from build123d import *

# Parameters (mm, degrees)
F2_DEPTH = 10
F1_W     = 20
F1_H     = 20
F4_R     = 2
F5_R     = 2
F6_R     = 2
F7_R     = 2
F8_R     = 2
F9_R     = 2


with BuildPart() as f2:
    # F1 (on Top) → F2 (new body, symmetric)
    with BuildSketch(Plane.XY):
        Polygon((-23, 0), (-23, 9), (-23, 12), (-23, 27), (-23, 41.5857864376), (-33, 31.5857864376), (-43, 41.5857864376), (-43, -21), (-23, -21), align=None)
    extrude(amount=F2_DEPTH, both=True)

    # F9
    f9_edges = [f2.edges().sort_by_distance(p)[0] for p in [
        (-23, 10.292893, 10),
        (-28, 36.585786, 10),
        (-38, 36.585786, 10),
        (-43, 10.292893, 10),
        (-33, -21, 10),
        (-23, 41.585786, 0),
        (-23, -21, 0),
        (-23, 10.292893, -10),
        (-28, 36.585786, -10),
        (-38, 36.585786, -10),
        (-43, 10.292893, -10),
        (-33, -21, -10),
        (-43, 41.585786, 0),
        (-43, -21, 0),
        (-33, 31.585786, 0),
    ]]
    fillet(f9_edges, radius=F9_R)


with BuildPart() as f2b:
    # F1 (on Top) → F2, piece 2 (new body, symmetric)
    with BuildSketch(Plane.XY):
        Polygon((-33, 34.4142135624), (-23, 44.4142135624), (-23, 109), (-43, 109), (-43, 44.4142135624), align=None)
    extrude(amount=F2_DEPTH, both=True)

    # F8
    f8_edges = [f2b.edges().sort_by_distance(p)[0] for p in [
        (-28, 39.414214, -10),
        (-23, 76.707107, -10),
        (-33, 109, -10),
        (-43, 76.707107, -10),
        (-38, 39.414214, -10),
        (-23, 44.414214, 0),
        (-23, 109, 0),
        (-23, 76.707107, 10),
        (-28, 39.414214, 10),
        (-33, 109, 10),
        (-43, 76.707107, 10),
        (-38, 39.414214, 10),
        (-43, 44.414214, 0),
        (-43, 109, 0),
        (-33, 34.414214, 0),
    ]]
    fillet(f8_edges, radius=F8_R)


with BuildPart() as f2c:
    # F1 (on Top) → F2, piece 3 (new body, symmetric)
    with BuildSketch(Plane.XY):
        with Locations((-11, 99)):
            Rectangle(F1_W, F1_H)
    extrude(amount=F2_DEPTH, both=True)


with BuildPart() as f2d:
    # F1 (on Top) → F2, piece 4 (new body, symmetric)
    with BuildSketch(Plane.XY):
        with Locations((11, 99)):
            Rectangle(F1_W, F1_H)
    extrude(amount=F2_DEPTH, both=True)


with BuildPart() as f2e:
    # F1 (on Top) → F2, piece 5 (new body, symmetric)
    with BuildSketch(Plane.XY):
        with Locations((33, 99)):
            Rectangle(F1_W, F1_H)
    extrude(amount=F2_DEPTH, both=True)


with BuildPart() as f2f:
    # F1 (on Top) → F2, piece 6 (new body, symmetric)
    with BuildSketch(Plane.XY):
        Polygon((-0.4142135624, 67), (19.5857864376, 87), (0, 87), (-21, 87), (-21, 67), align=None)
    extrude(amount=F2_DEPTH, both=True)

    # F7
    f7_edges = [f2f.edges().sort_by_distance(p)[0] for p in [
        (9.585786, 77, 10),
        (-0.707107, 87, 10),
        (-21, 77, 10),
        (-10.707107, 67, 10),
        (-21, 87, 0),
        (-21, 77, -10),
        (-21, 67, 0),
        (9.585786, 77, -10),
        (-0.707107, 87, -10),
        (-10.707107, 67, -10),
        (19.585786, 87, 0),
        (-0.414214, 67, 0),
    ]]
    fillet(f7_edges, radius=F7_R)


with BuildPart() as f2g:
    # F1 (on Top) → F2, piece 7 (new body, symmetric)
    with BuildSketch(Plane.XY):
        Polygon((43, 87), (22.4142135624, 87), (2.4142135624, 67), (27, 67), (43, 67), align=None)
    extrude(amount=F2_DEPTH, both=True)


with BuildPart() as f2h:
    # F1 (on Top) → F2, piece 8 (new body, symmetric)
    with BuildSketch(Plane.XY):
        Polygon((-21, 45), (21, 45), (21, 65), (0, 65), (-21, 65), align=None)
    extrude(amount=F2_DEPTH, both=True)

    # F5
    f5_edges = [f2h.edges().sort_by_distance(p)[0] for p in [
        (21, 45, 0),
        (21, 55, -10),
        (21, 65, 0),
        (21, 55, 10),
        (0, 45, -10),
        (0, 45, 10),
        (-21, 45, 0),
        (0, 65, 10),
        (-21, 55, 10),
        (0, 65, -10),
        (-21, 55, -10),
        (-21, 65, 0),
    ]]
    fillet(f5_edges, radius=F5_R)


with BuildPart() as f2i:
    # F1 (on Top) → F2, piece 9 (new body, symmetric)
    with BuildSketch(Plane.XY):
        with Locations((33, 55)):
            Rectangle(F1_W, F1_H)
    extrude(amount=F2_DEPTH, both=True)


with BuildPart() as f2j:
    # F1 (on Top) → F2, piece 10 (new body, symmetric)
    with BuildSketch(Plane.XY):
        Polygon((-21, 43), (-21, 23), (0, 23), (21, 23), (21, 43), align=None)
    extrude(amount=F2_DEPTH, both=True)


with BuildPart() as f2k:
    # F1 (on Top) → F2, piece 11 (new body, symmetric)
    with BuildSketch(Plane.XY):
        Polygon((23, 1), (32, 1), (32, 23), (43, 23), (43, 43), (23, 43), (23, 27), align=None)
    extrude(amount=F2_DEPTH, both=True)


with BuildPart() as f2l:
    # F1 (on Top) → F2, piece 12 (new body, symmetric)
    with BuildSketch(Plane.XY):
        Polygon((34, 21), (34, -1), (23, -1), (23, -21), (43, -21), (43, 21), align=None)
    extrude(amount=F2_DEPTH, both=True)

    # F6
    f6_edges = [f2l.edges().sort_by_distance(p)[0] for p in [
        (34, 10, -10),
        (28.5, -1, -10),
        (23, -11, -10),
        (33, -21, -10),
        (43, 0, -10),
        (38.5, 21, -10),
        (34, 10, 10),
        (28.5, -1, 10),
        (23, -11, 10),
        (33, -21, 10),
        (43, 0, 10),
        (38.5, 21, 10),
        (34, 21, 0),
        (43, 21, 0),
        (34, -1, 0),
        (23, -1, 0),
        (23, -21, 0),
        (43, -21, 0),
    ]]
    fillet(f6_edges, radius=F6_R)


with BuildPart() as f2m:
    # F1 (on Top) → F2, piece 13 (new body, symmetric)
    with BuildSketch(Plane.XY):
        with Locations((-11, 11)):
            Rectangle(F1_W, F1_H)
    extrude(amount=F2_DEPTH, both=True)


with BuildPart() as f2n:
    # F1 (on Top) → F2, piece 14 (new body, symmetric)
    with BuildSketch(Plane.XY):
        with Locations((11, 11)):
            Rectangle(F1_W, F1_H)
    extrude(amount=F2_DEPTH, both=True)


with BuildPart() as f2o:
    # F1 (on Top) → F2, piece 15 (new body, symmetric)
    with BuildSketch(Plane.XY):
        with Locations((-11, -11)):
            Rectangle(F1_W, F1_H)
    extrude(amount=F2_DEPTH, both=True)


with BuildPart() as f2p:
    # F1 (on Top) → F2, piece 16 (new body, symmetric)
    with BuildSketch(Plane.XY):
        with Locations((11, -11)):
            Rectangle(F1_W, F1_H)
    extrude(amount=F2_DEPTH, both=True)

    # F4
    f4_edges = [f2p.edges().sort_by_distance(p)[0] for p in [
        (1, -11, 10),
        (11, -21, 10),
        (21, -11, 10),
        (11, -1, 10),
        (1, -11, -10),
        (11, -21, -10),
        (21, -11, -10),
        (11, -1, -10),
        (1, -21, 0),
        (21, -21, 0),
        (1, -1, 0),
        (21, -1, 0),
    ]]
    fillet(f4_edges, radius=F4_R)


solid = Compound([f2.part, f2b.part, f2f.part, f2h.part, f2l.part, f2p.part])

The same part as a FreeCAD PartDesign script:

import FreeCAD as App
import Part
import Sketcher

V = App.Vector
Q = App.Units.Quantity


def add_polygon(sketch, points):
    """Adds a closed chain of lines whose ends are joined by coincident constraints."""
    first, n = sketch.GeometryCount, len(points)
    for a, b in zip(points, points[1:] + points[:1]):
        sketch.addGeometry(Part.LineSegment(App.Vector(*a, 0), App.Vector(*b, 0)), False)
    for i in range(n):
        sketch.addConstraint(Sketcher.Constraint("Coincident", first + i, 2, first + (i + 1) % n, 1))

doc = App.newDocument("Part")
params = doc.addObject("Spreadsheet::Sheet", "Params")
for row, (alias, value) in enumerate([
    ("sketch1_width", "20 mm"),
    ("pad1_length", "20 mm"),
    ("fillet_radius", "2 mm"),
    ("sketch2_width", "20 mm"),
    ("pad2_length", "20 mm"),
    ("fillet2_radius", "2 mm"),
    ("sketch3_width", "20 mm"),
    ("pad3_length", "20 mm"),
    ("sketch4_width", "20 mm"),
    ("pad4_length", "20 mm"),
    ("sketch5_width", "20 mm"),
    ("pad5_length", "20 mm"),
    ("sketch6_height", "20 mm"),
    ("pad6_length", "20 mm"),
    ("fillet3_radius", "2 mm"),
    ("sketch7_height", "20 mm"),
    ("pad7_length", "20 mm"),
    ("sketch8_width", "42 mm"),
    ("sketch8_height", "20 mm"),
    ("pad8_length", "20 mm"),
    ("fillet4_radius", "2 mm"),
    ("sketch9_width", "20 mm"),
    ("pad9_length", "20 mm"),
    ("sketch10_width", "42 mm"),
    ("sketch10_height", "20 mm"),
    ("pad10_length", "20 mm"),
    ("sketch11_width", "9 mm"),
    ("sketch11_width2", "11 mm"),
    ("sketch11_height", "22 mm"),
    ("pad11_length", "20 mm"),
    ("sketch12_width", "11 mm"),
    ("sketch12_width2", "20 mm"),
    ("sketch12_height", "22 mm"),
    ("pad12_length", "20 mm"),
    ("fillet5_radius", "2 mm"),
    ("sketch13_width", "20 mm"),
    ("pad13_length", "20 mm"),
    ("sketch14_width", "20 mm"),
    ("pad14_length", "20 mm"),
    ("sketch15_width", "20 mm"),
    ("pad15_length", "20 mm"),
    ("sketch16_width", "20 mm"),
    ("pad16_length", "20 mm"),
    ("fillet6_radius", "2 mm"),
], start=1):
    params.set(f"A{row}", alias)
    params.set(f"B{row}", "=" + value)
    params.setAlias(f"B{row}", alias)

body = doc.addObject("PartDesign::Body", "Body")

sketch1 = body.newObject("Sketcher::SketchObject", "Sketch")
sketch1.AttachmentSupport = (doc.getObject("XY_Plane"), [""])
sketch1.MapMode = "FlatFace"
add_polygon(sketch1, [(-23, 42), (-33, 32), (-43, 42), (-43, -21), (-23, -21)])
sketch1.addConstraint(Sketcher.Constraint("Vertical", 2))
sketch1.addConstraint(Sketcher.Constraint("Horizontal", 3))
sketch1.addConstraint(Sketcher.Constraint("Vertical", 4))
sketch1.addConstraint(Sketcher.Constraint("Perpendicular", 0, 1))
sketch1.addConstraint(Sketcher.Constraint("Horizontal", 1, 2, 4, 2))
sketch1.addConstraint(Sketcher.Constraint("Equal", 0, 1))
sketch1.addConstraint(Sketcher.Constraint("DistanceX", 3, 1, 3, 2, Q("20 mm")))
sketch1.addConstraint(Sketcher.Constraint("DistanceX", 0, 2, -1, 1, Q("33 mm")))
sketch1.addConstraint(Sketcher.Constraint("DistanceY", 2, 2, -1, 1, Q("21 mm")))
sketch1.addConstraint(Sketcher.Constraint("DistanceY", 2, 2, 2, 1, Q("62.585786 mm")))
sketch1.setExpression("Constraints[11]", "Params.sketch1_width")
pad1 = body.newObject("PartDesign::Pad", "Pad")
pad1.Profile = sketch1
pad1.setExpression("Length", "Params.pad1_length")
pad1.Midplane = True
doc.recompute()

fillet = body.newObject("PartDesign::Fillet", "Fillet")
fillet.Base = (pad1, ["Edge1"])
fillet.UseAllEdges = True
fillet.setExpression("Radius", "Params.fillet_radius")
body2 = doc.addObject("PartDesign::Body", "Body001")

sketch2 = body2.newObject("Sketcher::SketchObject", "Sketch001")
sketch2.AttachmentSupport = (doc.getObject("XY_Plane001"), [""])
sketch2.MapMode = "FlatFace"
add_polygon(sketch2, [(-33, 34), (-23, 44), (-23, 109), (-43, 109), (-43, 44)])
sketch2.addConstraint(Sketcher.Constraint("Vertical", 1))
sketch2.addConstraint(Sketcher.Constraint("Horizontal", 2))
sketch2.addConstraint(Sketcher.Constraint("Vertical", 3))
sketch2.addConstraint(Sketcher.Constraint("Perpendicular", 0, 4))
sketch2.addConstraint(Sketcher.Constraint("Horizontal", 0, 2, 3, 2))
sketch2.addConstraint(Sketcher.Constraint("Equal", 0, 4))
sketch2.addConstraint(Sketcher.Constraint("DistanceX", 2, 2, 2, 1, Q("20 mm")))
sketch2.addConstraint(Sketcher.Constraint("DistanceX", 0, 2, -1, 1, Q("23 mm")))
sketch2.addConstraint(Sketcher.Constraint("DistanceY", -1, 1, 1, 2, Q("109 mm")))
sketch2.addConstraint(Sketcher.Constraint("DistanceY", 1, 1, 1, 2, Q("64.585786 mm")))
sketch2.setExpression("Constraints[11]", "Params.sketch2_width")
pad2 = body2.newObject("PartDesign::Pad", "Pad001")
pad2.Profile = sketch2
pad2.setExpression("Length", "Params.pad2_length")
pad2.Midplane = True
doc.recompute()

fillet2 = body2.newObject("PartDesign::Fillet", "Fillet001")
fillet2.Base = (pad2, ["Edge1"])
fillet2.UseAllEdges = True
fillet2.setExpression("Radius", "Params.fillet2_radius")
body3 = doc.addObject("PartDesign::Body", "Body002")

sketch3 = body3.newObject("Sketcher::SketchObject", "Sketch002")
sketch3.AttachmentSupport = (doc.getObject("XY_Plane002"), [""])
sketch3.MapMode = "FlatFace"
add_polygon(sketch3, [(-21, 109), (-21, 89), (-1, 89), (-1, 109)])
sketch3.addConstraint(Sketcher.Constraint("Vertical", 0))
sketch3.addConstraint(Sketcher.Constraint("Horizontal", 1))
sketch3.addConstraint(Sketcher.Constraint("Vertical", 2))
sketch3.addConstraint(Sketcher.Constraint("Horizontal", 3))
sketch3.addConstraint(Sketcher.Constraint("Equal", 3, 0))
sketch3.addConstraint(Sketcher.Constraint("DistanceX", 1, 1, 1, 2, Q("20 mm")))
sketch3.addConstraint(Sketcher.Constraint("DistanceX", 0, 2, -1, 1, Q("21 mm")))
sketch3.addConstraint(Sketcher.Constraint("DistanceY", -1, 1, 0, 2, Q("89 mm")))
sketch3.setExpression("Constraints[9]", "Params.sketch3_width")
pad3 = body3.newObject("PartDesign::Pad", "Pad002")
pad3.Profile = sketch3
pad3.setExpression("Length", "Params.pad3_length")
pad3.Midplane = True
body4 = doc.addObject("PartDesign::Body", "Body003")

sketch4 = body4.newObject("Sketcher::SketchObject", "Sketch003")
sketch4.AttachmentSupport = (doc.getObject("XY_Plane003"), [""])
sketch4.MapMode = "FlatFace"
add_polygon(sketch4, [(1, 109), (1, 89), (21, 89), (21, 109)])
sketch4.addConstraint(Sketcher.Constraint("Vertical", 0))
sketch4.addConstraint(Sketcher.Constraint("Horizontal", 1))
sketch4.addConstraint(Sketcher.Constraint("Vertical", 2))
sketch4.addConstraint(Sketcher.Constraint("Horizontal", 3))
sketch4.addConstraint(Sketcher.Constraint("Equal", 3, 0))
sketch4.addConstraint(Sketcher.Constraint("DistanceX", 1, 1, 1, 2, Q("20 mm")))
sketch4.addConstraint(Sketcher.Constraint("DistanceX", -1, 1, 0, 2, Q("1 mm")))
sketch4.addConstraint(Sketcher.Constraint("DistanceY", -1, 1, 0, 2, Q("89 mm")))
sketch4.setExpression("Constraints[9]", "Params.sketch4_width")
pad4 = body4.newObject("PartDesign::Pad", "Pad003")
pad4.Profile = sketch4
pad4.setExpression("Length", "Params.pad4_length")
pad4.Midplane = True
body5 = doc.addObject("PartDesign::Body", "Body004")

sketch5 = body5.newObject("Sketcher::SketchObject", "Sketch004")
sketch5.AttachmentSupport = (doc.getObject("XY_Plane004"), [""])
sketch5.MapMode = "FlatFace"
add_polygon(sketch5, [(23, 109), (23, 89), (43, 89), (43, 109)])
sketch5.addConstraint(Sketcher.Constraint("Vertical", 0))
sketch5.addConstraint(Sketcher.Constraint("Horizontal", 1))
sketch5.addConstraint(Sketcher.Constraint("Vertical", 2))
sketch5.addConstraint(Sketcher.Constraint("Horizontal", 3))
sketch5.addConstraint(Sketcher.Constraint("Equal", 3, 0))
sketch5.addConstraint(Sketcher.Constraint("DistanceX", 1, 1, 1, 2, Q("20 mm")))
sketch5.addConstraint(Sketcher.Constraint("DistanceX", -1, 1, 0, 2, Q("23 mm")))
sketch5.addConstraint(Sketcher.Constraint("DistanceY", -1, 1, 0, 2, Q("89 mm")))
sketch5.setExpression("Constraints[9]", "Params.sketch5_width")
pad5 = body5.newObject("PartDesign::Pad", "Pad004")
pad5.Profile = sketch5
pad5.setExpression("Length", "Params.pad5_length")
pad5.Midplane = True
body6 = doc.addObject("PartDesign::Body", "Body005")

sketch6 = body6.newObject("Sketcher::SketchObject", "Sketch005")
sketch6.AttachmentSupport = (doc.getObject("XY_Plane005"), [""])
sketch6.MapMode = "FlatFace"
add_polygon(sketch6, [(0, 67), (20, 87), (-21, 87), (-21, 67)])
sketch6.addConstraint(Sketcher.Constraint("Horizontal", 1))
sketch6.addConstraint(Sketcher.Constraint("Vertical", 2))
sketch6.addConstraint(Sketcher.Constraint("Horizontal", 3))
sketch6.addConstraint(Sketcher.Constraint("DistanceY", 2, 2, 2, 1, Q("20 mm")))
sketch6.addConstraint(Sketcher.Constraint("Angle", 0, Q("45 deg")))
sketch6.addConstraint(Sketcher.Constraint("DistanceY", -1, 1, 0, 2, Q("87 mm")))
sketch6.addConstraint(Sketcher.Constraint("DistanceX", 1, 2, -1, 1, Q("21 mm")))
sketch6.addConstraint(Sketcher.Constraint("DistanceX", 1, 2, 1, 1, Q("40.585786 mm")))
sketch6.setExpression("Constraints[7]", "Params.sketch6_height")
pad6 = body6.newObject("PartDesign::Pad", "Pad005")
pad6.Profile = sketch6
pad6.setExpression("Length", "Params.pad6_length")
pad6.Midplane = True
doc.recompute()

fillet3 = body6.newObject("PartDesign::Fillet", "Fillet002")
fillet3.Base = (pad6, ["Edge1"])
fillet3.UseAllEdges = True
fillet3.setExpression("Radius", "Params.fillet3_radius")
body7 = doc.addObject("PartDesign::Body", "Body006")

sketch7 = body7.newObject("Sketcher::SketchObject", "Sketch006")
sketch7.AttachmentSupport = (doc.getObject("XY_Plane006"), [""])
sketch7.MapMode = "FlatFace"
add_polygon(sketch7, [(43, 87), (22, 87), (2, 67), (43, 67)])
sketch7.addConstraint(Sketcher.Constraint("Horizontal", 0))
sketch7.addConstraint(Sketcher.Constraint("Horizontal", 2))
sketch7.addConstraint(Sketcher.Constraint("Vertical", 3))
sketch7.addConstraint(Sketcher.Constraint("DistanceY", 3, 1, 3, 2, Q("20 mm")))
sketch7.addConstraint(Sketcher.Constraint("Angle", 1, Q("-135 deg")))
sketch7.addConstraint(Sketcher.Constraint("DistanceY", -1, 1, 0, 2, Q("87 mm")))
sketch7.addConstraint(Sketcher.Constraint("DistanceX", -1, 1, 2, 2, Q("43 mm")))
sketch7.addConstraint(Sketcher.Constraint("DistanceX", 0, 2, 0, 1, Q("20.585786 mm")))
sketch7.setExpression("Constraints[7]", "Params.sketch7_height")
pad7 = body7.newObject("PartDesign::Pad", "Pad006")
pad7.Profile = sketch7
pad7.setExpression("Length", "Params.pad7_length")
pad7.Midplane = True
body8 = doc.addObject("PartDesign::Body", "Body007")

sketch8 = body8.newObject("Sketcher::SketchObject", "Sketch007")
sketch8.AttachmentSupport = (doc.getObject("XY_Plane007"), [""])
sketch8.MapMode = "FlatFace"
add_polygon(sketch8, [(-21, 45), (21, 45), (21, 65), (-21, 65)])
sketch8.addConstraint(Sketcher.Constraint("Horizontal", 0))
sketch8.addConstraint(Sketcher.Constraint("Vertical", 1))
sketch8.addConstraint(Sketcher.Constraint("Horizontal", 2))
sketch8.addConstraint(Sketcher.Constraint("Vertical", 3))
sketch8.addConstraint(Sketcher.Constraint("DistanceX", 0, 1, 0, 2, Q("42 mm")))
sketch8.addConstraint(Sketcher.Constraint("DistanceY", 1, 1, 1, 2, Q("20 mm")))
sketch8.addConstraint(Sketcher.Constraint("DistanceX", -1, 1, 0, 2, Q("21 mm")))
sketch8.addConstraint(Sketcher.Constraint("DistanceY", -1, 1, 0, 2, Q("45 mm")))
sketch8.setExpression("Constraints[8]", "Params.sketch8_width")
sketch8.setExpression("Constraints[9]", "Params.sketch8_height")
pad8 = body8.newObject("PartDesign::Pad", "Pad007")
pad8.Profile = sketch8
pad8.setExpression("Length", "Params.pad8_length")
pad8.Midplane = True
doc.recompute()

fillet4 = body8.newObject("PartDesign::Fillet", "Fillet003")
fillet4.Base = (pad8, ["Edge1"])
fillet4.UseAllEdges = True
fillet4.setExpression("Radius", "Params.fillet4_radius")
body9 = doc.addObject("PartDesign::Body", "Body008")

sketch9 = body9.newObject("Sketcher::SketchObject", "Sketch008")
sketch9.AttachmentSupport = (doc.getObject("XY_Plane008"), [""])
sketch9.MapMode = "FlatFace"
add_polygon(sketch9, [(23, 65), (23, 45), (43, 45), (43, 65)])
sketch9.addConstraint(Sketcher.Constraint("Vertical", 0))
sketch9.addConstraint(Sketcher.Constraint("Horizontal", 1))
sketch9.addConstraint(Sketcher.Constraint("Vertical", 2))
sketch9.addConstraint(Sketcher.Constraint("Horizontal", 3))
sketch9.addConstraint(Sketcher.Constraint("Equal", 3, 0))
sketch9.addConstraint(Sketcher.Constraint("DistanceX", 1, 1, 1, 2, Q("20 mm")))
sketch9.addConstraint(Sketcher.Constraint("DistanceX", -1, 1, 0, 2, Q("23 mm")))
sketch9.addConstraint(Sketcher.Constraint("DistanceY", -1, 1, 0, 2, Q("45 mm")))
sketch9.setExpression("Constraints[9]", "Params.sketch9_width")
pad9 = body9.newObject("PartDesign::Pad", "Pad008")
pad9.Profile = sketch9
pad9.setExpression("Length", "Params.pad9_length")
pad9.Midplane = True
body10 = doc.addObject("PartDesign::Body", "Body009")

sketch10 = body10.newObject("Sketcher::SketchObject", "Sketch009")
sketch10.AttachmentSupport = (doc.getObject("XY_Plane009"), [""])
sketch10.MapMode = "FlatFace"
add_polygon(sketch10, [(-21, 43), (-21, 23), (21, 23), (21, 43)])
sketch10.addConstraint(Sketcher.Constraint("Vertical", 0))
sketch10.addConstraint(Sketcher.Constraint("Horizontal", 1))
sketch10.addConstraint(Sketcher.Constraint("Vertical", 2))
sketch10.addConstraint(Sketcher.Constraint("Horizontal", 3))
sketch10.addConstraint(Sketcher.Constraint("DistanceX", 1, 1, 1, 2, Q("42 mm")))
sketch10.addConstraint(Sketcher.Constraint("DistanceY", 0, 2, 0, 1, Q("20 mm")))
sketch10.addConstraint(Sketcher.Constraint("DistanceX", 0, 2, -1, 1, Q("21 mm")))
sketch10.addConstraint(Sketcher.Constraint("DistanceY", -1, 1, 0, 2, Q("23 mm")))
sketch10.setExpression("Constraints[8]", "Params.sketch10_width")
sketch10.setExpression("Constraints[9]", "Params.sketch10_height")
pad10 = body10.newObject("PartDesign::Pad", "Pad009")
pad10.Profile = sketch10
pad10.setExpression("Length", "Params.pad10_length")
pad10.Midplane = True
body11 = doc.addObject("PartDesign::Body", "Body010")

sketch11 = body11.newObject("Sketcher::SketchObject", "Sketch010")
sketch11.AttachmentSupport = (doc.getObject("XY_Plane010"), [""])
sketch11.MapMode = "FlatFace"
add_polygon(sketch11, [(23, 1), (32, 1), (32, 23), (43, 23), (43, 43), (23, 43)])
sketch11.addConstraint(Sketcher.Constraint("Horizontal", 0))
sketch11.addConstraint(Sketcher.Constraint("Vertical", 1))
sketch11.addConstraint(Sketcher.Constraint("Horizontal", 2))
sketch11.addConstraint(Sketcher.Constraint("Vertical", 3))
sketch11.addConstraint(Sketcher.Constraint("Horizontal", 4))
sketch11.addConstraint(Sketcher.Constraint("Vertical", 5))
sketch11.addConstraint(Sketcher.Constraint("Equal", 4, 3))
sketch11.addConstraint(Sketcher.Constraint("DistanceX", 0, 1, 0, 2, Q("9 mm")))
sketch11.addConstraint(Sketcher.Constraint("DistanceX", 2, 1, 2, 2, Q("11 mm")))
sketch11.addConstraint(Sketcher.Constraint("DistanceY", 1, 1, 1, 2, Q("22 mm")))
sketch11.addConstraint(Sketcher.Constraint("DistanceX", -1, 1, 0, 2, Q("32 mm")))
sketch11.addConstraint(Sketcher.Constraint("DistanceY", -1, 1, 0, 2, Q("1 mm")))
sketch11.setExpression("Constraints[13]", "Params.sketch11_width")
sketch11.setExpression("Constraints[14]", "Params.sketch11_width2")
sketch11.setExpression("Constraints[15]", "Params.sketch11_height")
pad11 = body11.newObject("PartDesign::Pad", "Pad010")
pad11.Profile = sketch11
pad11.setExpression("Length", "Params.pad11_length")
pad11.Midplane = True
body12 = doc.addObject("PartDesign::Body", "Body011")

sketch12 = body12.newObject("Sketcher::SketchObject", "Sketch011")
sketch12.AttachmentSupport = (doc.getObject("XY_Plane011"), [""])
sketch12.MapMode = "FlatFace"
add_polygon(sketch12, [(34, 21), (34, -1), (23, -1), (23, -21), (43, -21), (43, 21)])
sketch12.addConstraint(Sketcher.Constraint("Vertical", 0))
sketch12.addConstraint(Sketcher.Constraint("Horizontal", 1))
sketch12.addConstraint(Sketcher.Constraint("Vertical", 2))
sketch12.addConstraint(Sketcher.Constraint("Horizontal", 3))
sketch12.addConstraint(Sketcher.Constraint("Vertical", 4))
sketch12.addConstraint(Sketcher.Constraint("Horizontal", 5))
sketch12.addConstraint(Sketcher.Constraint("Equal", 3, 2))
sketch12.addConstraint(Sketcher.Constraint("DistanceX", 1, 2, 1, 1, Q("11 mm")))
sketch12.addConstraint(Sketcher.Constraint("DistanceX", 3, 1, 3, 2, Q("20 mm")))
sketch12.addConstraint(Sketcher.Constraint("DistanceY", 0, 2, 0, 1, Q("22 mm")))
sketch12.addConstraint(Sketcher.Constraint("DistanceX", -1, 1, 0, 2, Q("34 mm")))
sketch12.addConstraint(Sketcher.Constraint("DistanceY", 0, 2, -1, 1, Q("1 mm")))
sketch12.setExpression("Constraints[13]", "Params.sketch12_width")
sketch12.setExpression("Constraints[14]", "Params.sketch12_width2")
sketch12.setExpression("Constraints[15]", "Params.sketch12_height")
pad12 = body12.newObject("PartDesign::Pad", "Pad011")
pad12.Profile = sketch12
pad12.setExpression("Length", "Params.pad12_length")
pad12.Midplane = True
doc.recompute()

fillet5 = body12.newObject("PartDesign::Fillet", "Fillet004")
fillet5.Base = (pad12, ["Edge1"])
fillet5.UseAllEdges = True
fillet5.setExpression("Radius", "Params.fillet5_radius")
body13 = doc.addObject("PartDesign::Body", "Body012")

sketch13 = body13.newObject("Sketcher::SketchObject", "Sketch012")
sketch13.AttachmentSupport = (doc.getObject("XY_Plane012"), [""])
sketch13.MapMode = "FlatFace"
add_polygon(sketch13, [(-21, 21), (-21, 1), (-1, 1), (-1, 21)])
sketch13.addConstraint(Sketcher.Constraint("Vertical", 0))
sketch13.addConstraint(Sketcher.Constraint("Horizontal", 1))
sketch13.addConstraint(Sketcher.Constraint("Vertical", 2))
sketch13.addConstraint(Sketcher.Constraint("Horizontal", 3))
sketch13.addConstraint(Sketcher.Constraint("Equal", 3, 0))
sketch13.addConstraint(Sketcher.Constraint("DistanceX", 1, 1, 1, 2, Q("20 mm")))
sketch13.addConstraint(Sketcher.Constraint("DistanceX", 0, 2, -1, 1, Q("21 mm")))
sketch13.addConstraint(Sketcher.Constraint("DistanceY", -1, 1, 0, 2, Q("1 mm")))
sketch13.setExpression("Constraints[9]", "Params.sketch13_width")
pad13 = body13.newObject("PartDesign::Pad", "Pad012")
pad13.Profile = sketch13
pad13.setExpression("Length", "Params.pad13_length")
pad13.Midplane = True
body14 = doc.addObject("PartDesign::Body", "Body013")

sketch14 = body14.newObject("Sketcher::SketchObject", "Sketch013")
sketch14.AttachmentSupport = (doc.getObject("XY_Plane013"), [""])
sketch14.MapMode = "FlatFace"
add_polygon(sketch14, [(1, 21), (1, 1), (21, 1), (21, 21)])
sketch14.addConstraint(Sketcher.Constraint("Vertical", 0))
sketch14.addConstraint(Sketcher.Constraint("Horizontal", 1))
sketch14.addConstraint(Sketcher.Constraint("Vertical", 2))
sketch14.addConstraint(Sketcher.Constraint("Horizontal", 3))
sketch14.addConstraint(Sketcher.Constraint("Equal", 3, 0))
sketch14.addConstraint(Sketcher.Constraint("DistanceX", 1, 1, 1, 2, Q("20 mm")))
sketch14.addConstraint(Sketcher.Constraint("DistanceX", -1, 1, 0, 2, Q("1 mm")))
sketch14.addConstraint(Sketcher.Constraint("DistanceY", -1, 1, 0, 2, Q("1 mm")))
sketch14.setExpression("Constraints[9]", "Params.sketch14_width")
pad14 = body14.newObject("PartDesign::Pad", "Pad013")
pad14.Profile = sketch14
pad14.setExpression("Length", "Params.pad14_length")
pad14.Midplane = True
body15 = doc.addObject("PartDesign::Body", "Body014")

sketch15 = body15.newObject("Sketcher::SketchObject", "Sketch014")
sketch15.AttachmentSupport = (doc.getObject("XY_Plane014"), [""])
sketch15.MapMode = "FlatFace"
add_polygon(sketch15, [(-21, -1), (-21, -21), (-1, -21), (-1, -1)])
sketch15.addConstraint(Sketcher.Constraint("Vertical", 0))
sketch15.addConstraint(Sketcher.Constraint("Horizontal", 1))
sketch15.addConstraint(Sketcher.Constraint("Vertical", 2))
sketch15.addConstraint(Sketcher.Constraint("Horizontal", 3))
sketch15.addConstraint(Sketcher.Constraint("Equal", 3, 0))
sketch15.addConstraint(Sketcher.Constraint("DistanceX", 1, 1, 1, 2, Q("20 mm")))
sketch15.addConstraint(Sketcher.Constraint("DistanceX", 0, 2, -1, 1, Q("21 mm")))
sketch15.addConstraint(Sketcher.Constraint("DistanceY", 0, 2, -1, 1, Q("21 mm")))
sketch15.setExpression("Constraints[9]", "Params.sketch15_width")
pad15 = body15.newObject("PartDesign::Pad", "Pad014")
pad15.Profile = sketch15
pad15.setExpression("Length", "Params.pad15_length")
pad15.Midplane = True
body16 = doc.addObject("PartDesign::Body", "Body015")

sketch16 = body16.newObject("Sketcher::SketchObject", "Sketch015")
sketch16.AttachmentSupport = (doc.getObject("XY_Plane015"), [""])
sketch16.MapMode = "FlatFace"
add_polygon(sketch16, [(1, -1), (1, -21), (21, -21), (21, -1)])
sketch16.addConstraint(Sketcher.Constraint("Vertical", 0))
sketch16.addConstraint(Sketcher.Constraint("Horizontal", 1))
sketch16.addConstraint(Sketcher.Constraint("Vertical", 2))
sketch16.addConstraint(Sketcher.Constraint("Horizontal", 3))
sketch16.addConstraint(Sketcher.Constraint("Equal", 3, 0))
sketch16.addConstraint(Sketcher.Constraint("DistanceX", 1, 1, 1, 2, Q("20 mm")))
sketch16.addConstraint(Sketcher.Constraint("DistanceX", -1, 1, 0, 2, Q("1 mm")))
sketch16.addConstraint(Sketcher.Constraint("DistanceY", 0, 2, -1, 1, Q("21 mm")))
sketch16.setExpression("Constraints[9]", "Params.sketch16_width")
pad16 = body16.newObject("PartDesign::Pad", "Pad015")
pad16.Profile = sketch16
pad16.setExpression("Length", "Params.pad16_length")
pad16.Midplane = True
doc.recompute()

fillet6 = body16.newObject("PartDesign::Fillet", "Fillet005")
fillet6.Base = (pad16, ["Edge1"])
fillet6.UseAllEdges = True
fillet6.setExpression("Radius", "Params.fillet6_radius")
body3.Visibility = False
body4.Visibility = False
body5.Visibility = False
body7.Visibility = False
body9.Visibility = False
body10.Visibility = False
body11.Visibility = False
body13.Visibility = False
body14.Visibility = False
body15.Visibility = False

doc.recompute()
